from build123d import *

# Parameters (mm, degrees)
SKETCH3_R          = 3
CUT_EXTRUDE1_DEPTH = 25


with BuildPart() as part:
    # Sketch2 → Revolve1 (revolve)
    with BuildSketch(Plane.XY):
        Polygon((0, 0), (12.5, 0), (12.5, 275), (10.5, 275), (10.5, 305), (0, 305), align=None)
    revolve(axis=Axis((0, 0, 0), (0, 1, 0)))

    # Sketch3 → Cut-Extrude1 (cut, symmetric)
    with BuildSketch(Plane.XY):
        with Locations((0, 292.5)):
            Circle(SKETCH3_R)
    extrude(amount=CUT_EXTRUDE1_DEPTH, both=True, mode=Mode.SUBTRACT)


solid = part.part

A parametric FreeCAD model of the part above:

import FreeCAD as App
import Part
import Sketcher
from FreeCAD import Vector
Q = App.Units.Quantity


def add_polygon(sketch, points):
    """Adds a closed chain of lines whose ends are joined by coincident constraints."""
    first, n = sketch.GeometryCount, len(points)
    for a, b in zip(points, points[1:] + points[:1]):
        sketch.addGeometry(Part.LineSegment(App.Vector(*a, 0), App.Vector(*b, 0)), False)
    for i in range(n):
        sketch.addConstraint(Sketcher.Constraint("Coincident", first + i, 2, first + (i + 1) % n, 1))

doc = App.newDocument("Part")
params = doc.addObject("Spreadsheet::Sheet", "Params")
for row, (alias, value) in enumerate([
    ("sketch1_width", "2 mm"),
    ("sketch1_height", "275 mm"),
    ("sketch1_height2", "30 mm"),
    ("sketch1_width2", "12.5 mm"),
    ("revolution_angle", "360 deg"),
    ("sketch2_diameter", "6 mm"),
    ("pocket1_length", "50 mm"),
], start=1):
    params.set(f"A{row}", alias)
    params.set(f"B{row}", "=" + value)
    params.setAlias(f"B{row}", alias)

body = doc.addObject("PartDesign::Body", "Body")

# Sketch on XY plane
sketch1 = body.newObject("Sketcher::SketchObject", "Sketch")
sketch1.AttachmentSupport = (doc.getObject("XY_Plane"), [""])
sketch1.MapMode = "FlatFace"
add_polygon(sketch1, [(0, 0), (12.5, 0), (12.5, 275), (10.5, 275), (10.5, 305), (0, 305)])  # lines 0-5
sketch1.addConstraint(Sketcher.Constraint("Horizontal", 0))
sketch1.addConstraint(Sketcher.Constraint("Vertical", 1))
sketch1.addConstraint(Sketcher.Constraint("Horizontal", 2))
sketch1.addConstraint(Sketcher.Constraint("Vertical", 3))
sketch1.addConstraint(Sketcher.Constraint("Horizontal", 4))
sketch1.addConstraint(Sketcher.Constraint("Vertical", 5))
sketch1.addConstraint(Sketcher.Constraint("Coincident", 5, 2, -1, 1))
sketch1.addConstraint(Sketcher.Constraint("DistanceX", 2, 2, 2, 1, Q("2 mm")))
sketch1.addConstraint(Sketcher.Constraint("DistanceY", 1, 1, 1, 2, Q("275 mm")))
sketch1.addConstraint(Sketcher.Constraint("DistanceY", 3, 1, 3, 2, Q("30 mm")))
sketch1.addConstraint(Sketcher.Constraint("DistanceX", 0, 1, 0, 2, Q("12.5 mm")))
sketch1.setExpression("Constraints[13]", "Params.sketch1_width")
sketch1.setExpression("Constraints[14]", "Params.sketch1_height")
sketch1.setExpression("Constraints[15]", "Params.sketch1_height2")
sketch1.setExpression("Constraints[16]", "Params.sketch1_width2")
revolution = body.newObject("PartDesign::Revolution", "Revolution")
revolution.Profile = sketch1
revolution.ReferenceAxis = (sketch1, ["V_Axis"])
revolution.setExpression("Angle", "Params.revolution_angle")

# Sketch on XY plane
sketch2 = body.newObject("Sketcher::SketchObject", "Sketch001")
sketch2.AttachmentSupport = (doc.getObject("XY_Plane"), [""])
sketch2.MapMode = "FlatFace"
sketch2.addGeometry(Part.Circle(Vector(0, 292.5, 0), Vector(0, 0, 1), 3), False)
sketch2.addConstraint(Sketcher.Constraint("PointOnObject", 0, 3, -2))
sketch2.addConstraint(Sketcher.Constraint("Diameter", 0, Q("6 mm")))
sketch2.addConstraint(Sketcher.Constraint("DistanceY", -1, 1, 0, 3, Q("292.5 mm")))
sketch2.setExpression("Constraints[1]", "Params.sketch2_diameter")
pocket1 = body.newObject("PartDesign::Pocket", "Pocket")
pocket1.Profile = sketch2
pocket1.setExpression("Length", "Params.pocket1_length")
pocket1.Midplane = True

doc.recompute()
